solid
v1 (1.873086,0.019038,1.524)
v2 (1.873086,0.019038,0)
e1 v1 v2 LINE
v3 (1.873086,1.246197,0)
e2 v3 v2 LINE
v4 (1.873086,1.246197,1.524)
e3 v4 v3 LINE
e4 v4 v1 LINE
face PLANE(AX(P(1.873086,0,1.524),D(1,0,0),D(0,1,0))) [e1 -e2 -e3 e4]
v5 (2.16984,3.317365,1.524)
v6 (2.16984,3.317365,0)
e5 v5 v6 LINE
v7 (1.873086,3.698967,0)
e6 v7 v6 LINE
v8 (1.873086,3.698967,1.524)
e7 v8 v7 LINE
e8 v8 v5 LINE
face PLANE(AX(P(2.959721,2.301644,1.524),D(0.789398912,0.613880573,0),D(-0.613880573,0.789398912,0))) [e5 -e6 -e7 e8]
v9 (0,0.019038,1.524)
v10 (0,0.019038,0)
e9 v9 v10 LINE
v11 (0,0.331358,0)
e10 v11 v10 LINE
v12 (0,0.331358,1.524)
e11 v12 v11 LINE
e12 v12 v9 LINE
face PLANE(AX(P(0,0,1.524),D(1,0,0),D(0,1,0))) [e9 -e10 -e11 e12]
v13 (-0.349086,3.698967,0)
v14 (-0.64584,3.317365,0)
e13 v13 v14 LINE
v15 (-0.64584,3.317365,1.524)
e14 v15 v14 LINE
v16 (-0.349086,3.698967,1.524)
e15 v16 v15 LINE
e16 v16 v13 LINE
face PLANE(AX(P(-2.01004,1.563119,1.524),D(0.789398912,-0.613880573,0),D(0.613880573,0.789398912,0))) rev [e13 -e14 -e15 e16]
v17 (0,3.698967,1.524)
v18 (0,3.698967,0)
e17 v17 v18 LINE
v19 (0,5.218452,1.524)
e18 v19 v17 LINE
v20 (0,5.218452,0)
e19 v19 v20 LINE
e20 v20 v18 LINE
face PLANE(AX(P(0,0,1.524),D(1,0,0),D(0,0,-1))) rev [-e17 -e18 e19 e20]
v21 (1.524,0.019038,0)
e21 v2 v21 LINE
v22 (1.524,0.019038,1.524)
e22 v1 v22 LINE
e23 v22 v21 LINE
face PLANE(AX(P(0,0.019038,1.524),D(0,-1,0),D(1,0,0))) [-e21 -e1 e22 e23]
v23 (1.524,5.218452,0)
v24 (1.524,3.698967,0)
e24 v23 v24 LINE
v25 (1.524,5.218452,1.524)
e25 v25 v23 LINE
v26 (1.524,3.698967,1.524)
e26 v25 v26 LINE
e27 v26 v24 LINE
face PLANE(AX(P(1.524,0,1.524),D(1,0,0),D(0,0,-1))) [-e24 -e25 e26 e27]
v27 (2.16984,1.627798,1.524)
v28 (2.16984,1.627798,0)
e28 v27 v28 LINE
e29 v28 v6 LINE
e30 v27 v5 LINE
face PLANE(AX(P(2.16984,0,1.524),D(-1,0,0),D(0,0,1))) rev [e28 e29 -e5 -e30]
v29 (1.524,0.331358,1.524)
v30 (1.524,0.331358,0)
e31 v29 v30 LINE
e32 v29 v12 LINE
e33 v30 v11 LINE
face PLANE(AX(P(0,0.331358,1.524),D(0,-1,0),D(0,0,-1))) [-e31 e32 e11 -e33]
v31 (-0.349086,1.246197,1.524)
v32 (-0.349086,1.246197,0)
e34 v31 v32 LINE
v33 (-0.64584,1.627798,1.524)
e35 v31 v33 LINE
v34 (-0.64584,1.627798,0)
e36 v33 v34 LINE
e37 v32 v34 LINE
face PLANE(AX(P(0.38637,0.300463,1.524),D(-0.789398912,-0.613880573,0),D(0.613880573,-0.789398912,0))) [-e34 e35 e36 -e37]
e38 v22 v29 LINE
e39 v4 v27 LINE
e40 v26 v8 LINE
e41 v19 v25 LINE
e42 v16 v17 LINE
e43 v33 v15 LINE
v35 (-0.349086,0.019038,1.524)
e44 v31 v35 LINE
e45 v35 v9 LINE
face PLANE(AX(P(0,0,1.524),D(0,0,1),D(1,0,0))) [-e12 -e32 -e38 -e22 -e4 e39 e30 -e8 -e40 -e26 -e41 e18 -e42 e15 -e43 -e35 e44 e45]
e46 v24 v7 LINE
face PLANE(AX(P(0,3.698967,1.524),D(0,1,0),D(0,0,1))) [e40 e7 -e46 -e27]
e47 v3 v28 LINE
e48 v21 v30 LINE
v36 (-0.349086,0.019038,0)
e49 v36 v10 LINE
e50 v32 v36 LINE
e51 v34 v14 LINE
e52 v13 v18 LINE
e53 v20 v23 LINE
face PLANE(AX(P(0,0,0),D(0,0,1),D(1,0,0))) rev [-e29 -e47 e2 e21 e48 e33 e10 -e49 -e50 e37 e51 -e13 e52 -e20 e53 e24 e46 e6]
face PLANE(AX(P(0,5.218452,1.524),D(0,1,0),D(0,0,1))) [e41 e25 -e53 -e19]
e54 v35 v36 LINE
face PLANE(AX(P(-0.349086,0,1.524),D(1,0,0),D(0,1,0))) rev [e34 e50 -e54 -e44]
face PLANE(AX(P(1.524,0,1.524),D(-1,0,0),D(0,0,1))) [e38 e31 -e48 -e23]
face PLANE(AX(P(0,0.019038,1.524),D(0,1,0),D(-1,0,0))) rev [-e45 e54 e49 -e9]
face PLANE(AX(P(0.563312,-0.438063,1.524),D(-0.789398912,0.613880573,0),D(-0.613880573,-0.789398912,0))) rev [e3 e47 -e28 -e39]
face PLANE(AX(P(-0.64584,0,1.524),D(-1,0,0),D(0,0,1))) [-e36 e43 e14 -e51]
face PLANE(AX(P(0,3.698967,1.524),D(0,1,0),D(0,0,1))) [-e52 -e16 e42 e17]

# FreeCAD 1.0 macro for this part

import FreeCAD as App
import Part
import Sketcher
from FreeCAD import Vector
Q = App.Units.Quantity


def add_polygon(sketch, points):
    """Adds a closed chain of lines whose ends are joined by coincident constraints."""
    first, n = sketch.GeometryCount, len(points)
    for a, b in zip(points, points[1:] + points[:1]):
        sketch.addGeometry(Part.LineSegment(App.Vector(*a, 0), App.Vector(*b, 0)), False)
    for i in range(n):
        sketch.addConstraint(Sketcher.Constraint("Coincident", first + i, 2, first + (i + 1) % n, 1))

doc = App.newDocument("Part")
body = doc.addObject("PartDesign::Body", "Body")

# Sketch on XY plane
sketch1 = body.newObject("Sketcher::SketchObject", "Sketch")
sketch1.AttachmentSupport = (doc.getObject("XY_Plane"), [""])
sketch1.MapMode = "FlatFace"
add_polygon(sketch1, [(1.52, 0.33), (1.52, 0.02), (1.87, 0.02), (1.87, 1.25), (2.17, 1.63), (2.17, 3.32), (1.87, 3.7), (1.52, 3.7), (1.52, 5.22), (0, 5.22), (0, 3.7), (-0.35, 3.7), (-0.65, 3.32), (-0.65, 1.63), (-0.35, 1.25), (-0.35, 0.02), (0, 0.02), (0, 0.33)])  # lines 0-17
sketch1.addConstraint([
    Sketcher.Constraint("Vertical", 0),
    Sketcher.Constraint("Horizontal", 1),
    Sketcher.Constraint("Vertical", 2),
    Sketcher.Constraint("Vertical", 4),
    Sketcher.Constraint("Horizontal", 6),
    Sketcher.Constraint("Vertical", 7),
    Sketcher.Constraint("Horizontal", 8),
    Sketcher.Constraint("Vertical", 9),
    Sketcher.Constraint("Horizontal", 10),
    Sketcher.Constraint("Vertical", 12),
    Sketcher.Constraint("Vertical", 14),
    Sketcher.Constraint("Horizontal", 15),
    Sketcher.Constraint("Vertical", 16),
    Sketcher.Constraint("Horizontal", 17),
    Sketcher.Constraint("PointOnObject", 8, 2, -2),
    Sketcher.Constraint("PointOnObject", 15, 2, -2),
    Sketcher.Constraint("Parallel", 3, 11),
    Sketcher.Constraint("Parallel", 5, 13),
    Sketcher.Constraint("Horizontal", 6, 2, 9, 2),
    Sketcher.Constraint("Horizontal", 4, 2, 11, 2),
    Sketcher.Constraint("Horizontal", 3, 2, 12, 2),
    Sketcher.Constraint("Horizontal", 2, 2, 13, 2),
    Sketcher.Constraint("Horizontal", 1, 2, 14, 2),
    Sketcher.Constraint("Vertical", 2, 2, 5, 2),
    Sketcher.Constraint("Vertical", 0, 2, 6, 2),
    Sketcher.Constraint("Vertical", 10, 2, 13, 2),
    Sketcher.Constraint("Equal", 6, 10),
    Sketcher.Constraint("DistanceX", 8, 2, 8, 1, Q("0.06 in")),
    Sketcher.Constraint("DistanceY", 0, 2, 0, 1, 0.312319),
    Sketcher.Constraint("DistanceY", 2, 1, 2, 2, 1.227158),
    Sketcher.Constraint("DistanceY", 2, 2, 3, 2, 0.381601),
    Sketcher.Constraint("DistanceX", 1, 1, 1, 2, 0.349086),
    Sketcher.Constraint("DistanceY", 4, 1, 4, 2, 1.689567),
    Sketcher.Constraint("DistanceY", 7, 1, 7, 2, 1.519485),
    Sketcher.Constraint("DistanceY", -1, 1, 0, 2, 0.019038),
    Sketcher.Constraint("DistanceX", -1, 1, 3, 2, 2.16984),
])
pad1 = body.newObject("PartDesign::Pad", "Pad")
pad1.Profile = sketch1
pad1.Length = Q("0.06 in")

doc.recompute()
